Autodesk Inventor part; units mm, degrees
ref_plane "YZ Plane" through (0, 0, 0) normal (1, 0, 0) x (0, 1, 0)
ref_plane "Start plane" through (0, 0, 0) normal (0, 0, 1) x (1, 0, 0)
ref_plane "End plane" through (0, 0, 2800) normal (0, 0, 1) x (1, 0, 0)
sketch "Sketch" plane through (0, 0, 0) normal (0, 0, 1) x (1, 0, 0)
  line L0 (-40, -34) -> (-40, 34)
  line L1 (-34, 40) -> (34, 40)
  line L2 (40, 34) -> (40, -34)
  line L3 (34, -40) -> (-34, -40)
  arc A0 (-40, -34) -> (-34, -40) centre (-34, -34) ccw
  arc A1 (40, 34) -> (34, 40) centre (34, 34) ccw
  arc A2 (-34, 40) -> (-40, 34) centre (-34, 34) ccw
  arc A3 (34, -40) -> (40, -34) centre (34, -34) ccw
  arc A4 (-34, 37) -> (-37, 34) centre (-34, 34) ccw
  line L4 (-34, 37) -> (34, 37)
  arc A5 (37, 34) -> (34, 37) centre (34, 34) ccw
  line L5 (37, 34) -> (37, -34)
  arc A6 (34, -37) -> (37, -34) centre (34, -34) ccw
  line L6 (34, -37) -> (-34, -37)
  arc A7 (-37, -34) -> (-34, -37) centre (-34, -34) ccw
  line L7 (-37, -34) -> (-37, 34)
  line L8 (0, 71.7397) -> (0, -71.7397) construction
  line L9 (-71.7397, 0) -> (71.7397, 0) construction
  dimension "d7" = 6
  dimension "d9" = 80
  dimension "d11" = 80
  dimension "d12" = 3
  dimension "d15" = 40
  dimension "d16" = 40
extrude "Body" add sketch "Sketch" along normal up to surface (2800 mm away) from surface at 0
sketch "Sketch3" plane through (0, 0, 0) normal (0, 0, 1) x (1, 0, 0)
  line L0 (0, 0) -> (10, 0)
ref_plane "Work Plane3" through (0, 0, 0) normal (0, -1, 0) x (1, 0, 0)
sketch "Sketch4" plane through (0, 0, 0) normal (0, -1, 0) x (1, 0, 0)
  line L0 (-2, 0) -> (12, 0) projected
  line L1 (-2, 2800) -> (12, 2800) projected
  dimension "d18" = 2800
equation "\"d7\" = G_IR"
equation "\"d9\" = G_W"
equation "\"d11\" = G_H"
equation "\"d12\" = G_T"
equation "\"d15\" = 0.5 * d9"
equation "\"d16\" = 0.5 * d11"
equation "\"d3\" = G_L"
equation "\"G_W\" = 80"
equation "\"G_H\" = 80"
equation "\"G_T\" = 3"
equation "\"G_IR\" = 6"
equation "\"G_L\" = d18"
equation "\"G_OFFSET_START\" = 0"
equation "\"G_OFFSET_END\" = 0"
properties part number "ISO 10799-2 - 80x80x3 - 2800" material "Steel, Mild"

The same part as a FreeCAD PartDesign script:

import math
import FreeCAD as App
import Part
import Sketcher
from FreeCAD import Vector
Q = App.Units.Quantity

doc = App.newDocument("Part")
body = doc.addObject("PartDesign::Body", "Body")

# Sketch on XY plane
sketch1 = body.newObject("Sketcher::SketchObject", "Sketch")
sketch1.AttachmentSupport = (doc.getObject("XY_Plane"), [""])
sketch1.MapMode = "FlatFace"
sketch1.addGeometry([
    Part.LineSegment(Vector(-40, 34, 0), Vector(-40, -34, 0)),  # 0
    Part.ArcOfCircle(Part.Circle(Vector(-34, -34, 0), Vector(0, 0, 1), 6), math.radians(180), math.radians(270)),  # 1
    Part.LineSegment(Vector(-34, -40, 0), Vector(34, -40, 0)),  # 2
    Part.ArcOfCircle(Part.Circle(Vector(34, -34, 0), Vector(0, 0, 1), 6), math.radians(-90), math.radians(0)),  # 3
    Part.LineSegment(Vector(40, -34, 0), Vector(40, 34, 0)),  # 4
    Part.ArcOfCircle(Part.Circle(Vector(34, 34, 0), Vector(0, 0, 1), 6), math.radians(0), math.radians(90)),  # 5
    Part.LineSegment(Vector(34, 40, 0), Vector(-34, 40, 0)),  # 6
    Part.ArcOfCircle(Part.Circle(Vector(-34, 34, 0), Vector(0, 0, 1), 6), math.radians(90), math.radians(180)),  # 7
    Part.ArcOfCircle(Part.Circle(Vector(-34, 34, 0), Vector(0, 0, 1), 3), math.radians(90), math.radians(180)),  # 8
    Part.LineSegment(Vector(-34, 37, 0), Vector(34, 37, 0)),  # 9
    Part.ArcOfCircle(Part.Circle(Vector(34, 34, 0), Vector(0, 0, 1), 3), math.radians(0), math.radians(90)),  # 10
    Part.LineSegment(Vector(37, 34, 0), Vector(37, -34, 0)),  # 11
    Part.ArcOfCircle(Part.Circle(Vector(34, -34, 0), Vector(0, 0, 1), 3), math.radians(-90), math.radians(0)),  # 12
    Part.LineSegment(Vector(34, -37, 0), Vector(-34, -37, 0)),  # 13
    Part.ArcOfCircle(Part.Circle(Vector(-34, -34, 0), Vector(0, 0, 1), 3), math.radians(180), math.radians(270)),  # 14
    Part.LineSegment(Vector(-37, -34, 0), Vector(-37, 34, 0)),  # 15
], False)
sketch1.addConstraint([
    Sketcher.Constraint("Tangent", 0, 2, 1, 1),
    Sketcher.Constraint("Tangent", 1, 2, 2, 1),
    Sketcher.Constraint("Tangent", 2, 2, 3, 1),
    Sketcher.Constraint("Tangent", 3, 2, 4, 1),
    Sketcher.Constraint("Tangent", 4, 2, 5, 1),
    Sketcher.Constraint("Tangent", 5, 2, 6, 1),
    Sketcher.Constraint("Tangent", 6, 2, 7, 1),
    Sketcher.Constraint("Tangent", 7, 2, 0, 1),
    Sketcher.Constraint("Tangent", 8, 1, 9, 1),
    Sketcher.Constraint("Tangent", 9, 2, 10, 2),
    Sketcher.Constraint("Tangent", 10, 1, 11, 1),
    Sketcher.Constraint("Tangent", 11, 2, 12, 2),
    Sketcher.Constraint("Tangent", 12, 1, 13, 1),
    Sketcher.Constraint("Tangent", 13, 2, 14, 2),
    Sketcher.Constraint("Tangent", 14, 1, 15, 1),
    Sketcher.Constraint("Tangent", 15, 2, 8, 2),
    Sketcher.Constraint("Vertical", 0),
    Sketcher.Constraint("Horizontal", 2),
    Sketcher.Constraint("Vertical", 4),
    Sketcher.Constraint("Horizontal", 6),
    Sketcher.Constraint("Horizontal", 9),
    Sketcher.Constraint("Vertical", 11),
    Sketcher.Constraint("Horizontal", 13),
    Sketcher.Constraint("Vertical", 15),
    Sketcher.Constraint("Coincident", 8, 3, 7, 3),
    Sketcher.Constraint("Coincident", 10, 3, 5, 3),
    Sketcher.Constraint("Coincident", 12, 3, 3, 3),
    Sketcher.Constraint("Equal", 1, 3),
    Sketcher.Constraint("Equal", 3, 5),
    Sketcher.Constraint("Equal", 5, 7),
    Sketcher.Constraint("Equal", 12, 14),
    Sketcher.Constraint("Symmetric", 1, 3, 5, 3, -1, 1),
    Sketcher.Constraint("Equal", 13, 0),
    Sketcher.Constraint("Radius", 1, Q("6 mm")),
    Sketcher.Constraint("Radius", 8, Q("3 mm")),
    Sketcher.Constraint("DistanceX", 0, 2, -1, 1, Q("40 mm")),
])
pad1 = body.newObject("PartDesign::Pad", "Pad")
pad1.Profile = sketch1
pad1.Length = 2800

doc.recompute()
